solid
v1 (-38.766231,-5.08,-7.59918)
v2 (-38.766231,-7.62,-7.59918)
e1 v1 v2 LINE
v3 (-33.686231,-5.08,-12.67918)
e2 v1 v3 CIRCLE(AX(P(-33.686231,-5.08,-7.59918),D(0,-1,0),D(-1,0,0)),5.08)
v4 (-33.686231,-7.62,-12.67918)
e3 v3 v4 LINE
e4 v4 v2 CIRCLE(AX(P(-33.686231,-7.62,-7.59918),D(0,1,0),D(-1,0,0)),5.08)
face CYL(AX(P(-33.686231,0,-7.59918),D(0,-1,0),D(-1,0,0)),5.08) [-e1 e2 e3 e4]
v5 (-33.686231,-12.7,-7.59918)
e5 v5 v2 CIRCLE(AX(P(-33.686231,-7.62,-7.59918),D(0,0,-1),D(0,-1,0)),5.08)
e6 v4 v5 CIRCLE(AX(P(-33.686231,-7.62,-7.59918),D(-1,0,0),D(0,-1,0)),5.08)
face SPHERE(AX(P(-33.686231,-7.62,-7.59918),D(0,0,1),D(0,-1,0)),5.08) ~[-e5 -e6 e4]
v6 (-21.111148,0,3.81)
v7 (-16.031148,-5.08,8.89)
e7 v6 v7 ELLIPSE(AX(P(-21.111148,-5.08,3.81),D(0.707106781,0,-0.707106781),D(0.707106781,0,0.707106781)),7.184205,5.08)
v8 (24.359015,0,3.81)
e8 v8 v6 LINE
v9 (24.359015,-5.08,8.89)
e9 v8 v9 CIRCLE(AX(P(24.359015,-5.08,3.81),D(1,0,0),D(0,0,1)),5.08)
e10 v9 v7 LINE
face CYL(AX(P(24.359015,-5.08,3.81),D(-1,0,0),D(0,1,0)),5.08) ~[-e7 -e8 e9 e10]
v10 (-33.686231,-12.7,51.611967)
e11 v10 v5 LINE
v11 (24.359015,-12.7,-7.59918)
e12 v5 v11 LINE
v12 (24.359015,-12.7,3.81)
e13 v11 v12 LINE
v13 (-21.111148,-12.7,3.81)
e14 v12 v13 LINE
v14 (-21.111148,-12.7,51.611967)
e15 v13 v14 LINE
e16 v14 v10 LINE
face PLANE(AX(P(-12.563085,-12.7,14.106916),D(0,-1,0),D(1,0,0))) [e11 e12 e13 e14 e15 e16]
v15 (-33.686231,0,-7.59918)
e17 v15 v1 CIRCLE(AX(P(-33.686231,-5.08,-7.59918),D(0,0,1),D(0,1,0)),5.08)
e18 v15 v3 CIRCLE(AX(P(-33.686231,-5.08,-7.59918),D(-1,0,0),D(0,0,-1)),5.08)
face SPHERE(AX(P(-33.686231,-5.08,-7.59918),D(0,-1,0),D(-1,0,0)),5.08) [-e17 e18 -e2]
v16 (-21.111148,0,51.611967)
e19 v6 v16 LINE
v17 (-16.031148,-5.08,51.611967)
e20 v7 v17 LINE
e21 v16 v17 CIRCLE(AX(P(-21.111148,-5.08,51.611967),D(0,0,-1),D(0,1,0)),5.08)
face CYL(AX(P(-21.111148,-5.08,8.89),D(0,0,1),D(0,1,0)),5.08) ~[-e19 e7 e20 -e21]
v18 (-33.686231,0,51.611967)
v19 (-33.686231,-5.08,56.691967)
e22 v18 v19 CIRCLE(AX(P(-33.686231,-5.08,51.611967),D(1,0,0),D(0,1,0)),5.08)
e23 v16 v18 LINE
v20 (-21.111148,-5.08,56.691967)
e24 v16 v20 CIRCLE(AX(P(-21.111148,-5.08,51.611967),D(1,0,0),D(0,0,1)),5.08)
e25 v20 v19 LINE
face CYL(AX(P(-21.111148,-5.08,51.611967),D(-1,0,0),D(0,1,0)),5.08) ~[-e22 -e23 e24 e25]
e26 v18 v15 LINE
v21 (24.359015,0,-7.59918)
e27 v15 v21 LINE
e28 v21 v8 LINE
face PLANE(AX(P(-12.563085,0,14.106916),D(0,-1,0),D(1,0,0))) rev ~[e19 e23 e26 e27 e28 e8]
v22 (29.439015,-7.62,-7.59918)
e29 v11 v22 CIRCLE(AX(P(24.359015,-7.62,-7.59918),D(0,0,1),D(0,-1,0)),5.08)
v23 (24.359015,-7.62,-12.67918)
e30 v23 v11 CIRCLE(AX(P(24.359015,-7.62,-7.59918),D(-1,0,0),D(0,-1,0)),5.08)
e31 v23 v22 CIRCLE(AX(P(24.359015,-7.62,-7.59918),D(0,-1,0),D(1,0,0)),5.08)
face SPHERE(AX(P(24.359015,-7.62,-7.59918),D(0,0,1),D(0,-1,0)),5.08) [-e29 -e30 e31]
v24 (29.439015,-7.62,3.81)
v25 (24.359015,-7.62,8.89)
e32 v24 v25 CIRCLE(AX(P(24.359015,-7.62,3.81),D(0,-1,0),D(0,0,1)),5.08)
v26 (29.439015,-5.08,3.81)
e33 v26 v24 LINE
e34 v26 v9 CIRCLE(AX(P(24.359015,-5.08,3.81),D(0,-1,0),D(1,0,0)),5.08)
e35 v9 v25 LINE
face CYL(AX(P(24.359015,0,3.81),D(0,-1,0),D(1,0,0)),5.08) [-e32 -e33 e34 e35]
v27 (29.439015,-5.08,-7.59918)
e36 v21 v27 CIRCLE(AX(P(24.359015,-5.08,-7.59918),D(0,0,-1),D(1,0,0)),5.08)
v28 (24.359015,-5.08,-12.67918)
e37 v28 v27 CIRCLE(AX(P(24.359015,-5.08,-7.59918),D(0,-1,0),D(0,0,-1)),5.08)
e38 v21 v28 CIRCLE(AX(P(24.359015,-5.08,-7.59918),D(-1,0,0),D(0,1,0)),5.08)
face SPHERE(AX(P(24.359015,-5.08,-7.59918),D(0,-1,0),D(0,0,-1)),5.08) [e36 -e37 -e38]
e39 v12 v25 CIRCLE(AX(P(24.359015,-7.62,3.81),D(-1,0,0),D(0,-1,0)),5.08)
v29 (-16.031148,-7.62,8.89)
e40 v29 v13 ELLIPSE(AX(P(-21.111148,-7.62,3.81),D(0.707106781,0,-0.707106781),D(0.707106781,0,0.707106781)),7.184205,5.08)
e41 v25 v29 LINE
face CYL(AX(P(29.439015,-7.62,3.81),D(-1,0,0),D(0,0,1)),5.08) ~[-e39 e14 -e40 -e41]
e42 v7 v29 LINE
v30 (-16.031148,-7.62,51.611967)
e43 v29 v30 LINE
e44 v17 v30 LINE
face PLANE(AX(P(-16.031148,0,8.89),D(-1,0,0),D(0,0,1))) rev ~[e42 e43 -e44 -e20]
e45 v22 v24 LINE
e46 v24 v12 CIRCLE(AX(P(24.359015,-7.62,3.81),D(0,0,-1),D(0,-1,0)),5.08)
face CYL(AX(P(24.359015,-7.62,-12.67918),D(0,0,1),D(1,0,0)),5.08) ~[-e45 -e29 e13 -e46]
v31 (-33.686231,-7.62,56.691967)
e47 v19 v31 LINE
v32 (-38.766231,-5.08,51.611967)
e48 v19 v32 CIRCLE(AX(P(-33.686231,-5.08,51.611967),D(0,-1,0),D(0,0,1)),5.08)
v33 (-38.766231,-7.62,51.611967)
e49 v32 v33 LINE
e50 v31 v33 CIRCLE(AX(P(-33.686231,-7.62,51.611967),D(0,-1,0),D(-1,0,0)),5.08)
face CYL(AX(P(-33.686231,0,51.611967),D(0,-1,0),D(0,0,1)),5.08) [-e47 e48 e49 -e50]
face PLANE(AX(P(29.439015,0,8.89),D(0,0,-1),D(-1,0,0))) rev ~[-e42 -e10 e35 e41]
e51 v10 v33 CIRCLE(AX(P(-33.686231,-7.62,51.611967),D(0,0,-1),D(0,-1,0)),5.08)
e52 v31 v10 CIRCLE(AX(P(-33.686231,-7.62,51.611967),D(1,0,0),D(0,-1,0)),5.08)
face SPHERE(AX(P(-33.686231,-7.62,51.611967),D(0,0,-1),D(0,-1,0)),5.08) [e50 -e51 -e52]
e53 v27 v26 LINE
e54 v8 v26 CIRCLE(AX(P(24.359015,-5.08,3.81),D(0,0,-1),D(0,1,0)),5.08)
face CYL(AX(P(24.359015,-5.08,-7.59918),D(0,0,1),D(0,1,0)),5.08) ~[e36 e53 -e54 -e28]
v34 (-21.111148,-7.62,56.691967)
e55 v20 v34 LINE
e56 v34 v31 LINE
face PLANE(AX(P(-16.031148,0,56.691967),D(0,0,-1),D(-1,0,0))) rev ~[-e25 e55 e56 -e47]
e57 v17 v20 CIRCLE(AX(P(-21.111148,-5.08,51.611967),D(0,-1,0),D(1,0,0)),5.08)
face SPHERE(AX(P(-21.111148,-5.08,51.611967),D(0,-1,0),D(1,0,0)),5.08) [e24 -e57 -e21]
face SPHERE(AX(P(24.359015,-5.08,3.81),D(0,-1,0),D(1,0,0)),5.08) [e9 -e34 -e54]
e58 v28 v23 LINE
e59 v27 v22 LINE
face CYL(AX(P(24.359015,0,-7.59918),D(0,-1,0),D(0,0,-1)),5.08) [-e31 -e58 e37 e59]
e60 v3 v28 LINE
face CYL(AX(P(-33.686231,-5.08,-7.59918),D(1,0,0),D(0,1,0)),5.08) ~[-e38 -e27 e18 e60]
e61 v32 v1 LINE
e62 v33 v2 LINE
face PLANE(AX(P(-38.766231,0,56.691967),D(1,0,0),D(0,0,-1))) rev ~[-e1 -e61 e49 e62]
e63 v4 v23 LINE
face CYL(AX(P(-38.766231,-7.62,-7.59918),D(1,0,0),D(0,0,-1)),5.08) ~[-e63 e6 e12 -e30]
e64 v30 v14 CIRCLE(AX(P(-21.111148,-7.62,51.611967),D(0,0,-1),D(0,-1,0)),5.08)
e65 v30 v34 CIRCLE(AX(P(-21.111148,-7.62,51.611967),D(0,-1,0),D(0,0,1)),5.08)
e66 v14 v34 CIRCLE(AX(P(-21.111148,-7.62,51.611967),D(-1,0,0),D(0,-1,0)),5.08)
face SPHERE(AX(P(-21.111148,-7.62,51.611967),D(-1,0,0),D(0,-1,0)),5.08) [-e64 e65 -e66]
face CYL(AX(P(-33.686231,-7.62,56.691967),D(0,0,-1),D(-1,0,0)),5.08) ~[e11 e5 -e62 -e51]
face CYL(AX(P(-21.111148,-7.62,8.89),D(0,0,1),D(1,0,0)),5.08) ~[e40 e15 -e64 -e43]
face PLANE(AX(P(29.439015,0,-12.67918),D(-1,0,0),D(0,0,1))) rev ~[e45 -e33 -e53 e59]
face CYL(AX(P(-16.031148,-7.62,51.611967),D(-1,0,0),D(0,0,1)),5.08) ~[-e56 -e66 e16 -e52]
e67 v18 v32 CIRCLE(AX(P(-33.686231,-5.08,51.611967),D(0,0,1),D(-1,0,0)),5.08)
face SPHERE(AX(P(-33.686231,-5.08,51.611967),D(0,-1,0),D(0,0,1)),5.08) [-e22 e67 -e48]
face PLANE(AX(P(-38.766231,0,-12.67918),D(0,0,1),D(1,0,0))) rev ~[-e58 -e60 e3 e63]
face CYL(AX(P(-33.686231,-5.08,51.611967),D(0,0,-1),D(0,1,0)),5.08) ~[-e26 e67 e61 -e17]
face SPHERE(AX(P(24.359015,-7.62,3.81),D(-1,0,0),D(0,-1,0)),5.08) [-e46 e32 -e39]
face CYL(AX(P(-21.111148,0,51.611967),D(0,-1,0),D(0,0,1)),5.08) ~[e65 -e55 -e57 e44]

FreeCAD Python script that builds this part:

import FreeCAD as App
import Part
import Sketcher
from FreeCAD import Vector
Q = App.Units.Quantity


def edges_at(feature, points):
    """Names of the edges that pass closest to the given points."""
    edges = feature.Shape.Edges
    near = lambda p: min(range(len(edges)), key=lambda i: edges[i].distToShape(Part.Vertex(*p))[0])
    return sorted({f"Edge{near(p) + 1}" for p in points})

doc = App.newDocument("Part")
body = doc.addObject("PartDesign::Body", "Body")

sketch1 = body.newObject("Sketcher::SketchObject", "Sketch")
sketch1.AttachmentSupport = (doc.getObject("XZ_Plane"), [""])
sketch1.MapMode = "FlatFace"
sketch1.addGeometry([
    Part.LineSegment(Vector(-16.031148, 56.691967, 0), Vector(-38.766231, 56.691967, 0)),
    Part.LineSegment(Vector(-38.766231, 56.691967, 0), Vector(-38.766231, -12.67918, 0)),
    Part.LineSegment(Vector(-38.766231, -12.67918, 0), Vector(29.439015, -12.67918, 0)),
    Part.LineSegment(Vector(29.439015, -12.67918, 0), Vector(29.439015, 8.89, 0)),
    Part.LineSegment(Vector(29.439015, 8.89, 0), Vector(-16.031148, 8.89, 0)),
    Part.LineSegment(Vector(-16.031148, 8.89, 0), Vector(-16.031148, 56.691967, 0)),
], False)
sketch1.addConstraint([
    Sketcher.Constraint("Coincident", 0, 2, 1, 1),
    Sketcher.Constraint("Coincident", 1, 2, 2, 1),
    Sketcher.Constraint("Coincident", 2, 2, 3, 1),
    Sketcher.Constraint("Coincident", 3, 2, 4, 1),
    Sketcher.Constraint("Coincident", 4, 2, 5, 1),
    Sketcher.Constraint("Coincident", 5, 2, 0, 1),
    Sketcher.Constraint("Horizontal", 0),
    Sketcher.Constraint("Vertical", 1),
    Sketcher.Constraint("Horizontal", 2),
    Sketcher.Constraint("Vertical", 3),
    Sketcher.Constraint("Horizontal", 4),
    Sketcher.Constraint("Vertical", 5),
    Sketcher.Constraint("DistanceY", -1, 1, 3, 2, Q("0.35 in")),
    Sketcher.Constraint("DistanceY", 3, 1, 3, 2, 21.56918),
    Sketcher.Constraint("DistanceX", 0, 2, 0, 1, 22.735083),
    Sketcher.Constraint("DistanceX", 2, 1, 2, 2, 68.205246),
    Sketcher.Constraint("DistanceY", 1, 2, 1, 1, 69.371147),
    Sketcher.Constraint("DistanceX", 0, 2, -1, 1, 38.766231),
])
pad1 = body.newObject("PartDesign::Pad", "Pad")
pad1.Profile = sketch1
pad1.Length = Q("0.5 in")
doc.recompute()

fillet = body.newObject("PartDesign::Fillet", "Fillet")
fillet.Base = (pad1, edges_at(pad1, [
    (-38.766, -12.7, 22.006),
    (-27.399, -12.7, 56.692),
    (-16.031, -12.7, 32.791),
    (6.704, -12.7, 8.89),
    (29.439, -12.7, -1.895),
    (-4.664, -12.7, -12.679),
    (29.439, -6.35, -12.679),
    (29.439, -6.35, 8.89),
    (-16.031, -6.35, 56.692),
    (-38.766, -6.35, 56.692),
    (-38.766, -6.35, -12.679),
]))
fillet.Radius = Q("0.2 in")
doc.recompute()

fillet2 = body.newObject("PartDesign::Fillet", "Fillet001")
fillet2.Base = (fillet, edges_at(fillet, [(-4.664, 0, -12.679)]))
fillet2.Radius = Q("0.2 in")

doc.recompute()
